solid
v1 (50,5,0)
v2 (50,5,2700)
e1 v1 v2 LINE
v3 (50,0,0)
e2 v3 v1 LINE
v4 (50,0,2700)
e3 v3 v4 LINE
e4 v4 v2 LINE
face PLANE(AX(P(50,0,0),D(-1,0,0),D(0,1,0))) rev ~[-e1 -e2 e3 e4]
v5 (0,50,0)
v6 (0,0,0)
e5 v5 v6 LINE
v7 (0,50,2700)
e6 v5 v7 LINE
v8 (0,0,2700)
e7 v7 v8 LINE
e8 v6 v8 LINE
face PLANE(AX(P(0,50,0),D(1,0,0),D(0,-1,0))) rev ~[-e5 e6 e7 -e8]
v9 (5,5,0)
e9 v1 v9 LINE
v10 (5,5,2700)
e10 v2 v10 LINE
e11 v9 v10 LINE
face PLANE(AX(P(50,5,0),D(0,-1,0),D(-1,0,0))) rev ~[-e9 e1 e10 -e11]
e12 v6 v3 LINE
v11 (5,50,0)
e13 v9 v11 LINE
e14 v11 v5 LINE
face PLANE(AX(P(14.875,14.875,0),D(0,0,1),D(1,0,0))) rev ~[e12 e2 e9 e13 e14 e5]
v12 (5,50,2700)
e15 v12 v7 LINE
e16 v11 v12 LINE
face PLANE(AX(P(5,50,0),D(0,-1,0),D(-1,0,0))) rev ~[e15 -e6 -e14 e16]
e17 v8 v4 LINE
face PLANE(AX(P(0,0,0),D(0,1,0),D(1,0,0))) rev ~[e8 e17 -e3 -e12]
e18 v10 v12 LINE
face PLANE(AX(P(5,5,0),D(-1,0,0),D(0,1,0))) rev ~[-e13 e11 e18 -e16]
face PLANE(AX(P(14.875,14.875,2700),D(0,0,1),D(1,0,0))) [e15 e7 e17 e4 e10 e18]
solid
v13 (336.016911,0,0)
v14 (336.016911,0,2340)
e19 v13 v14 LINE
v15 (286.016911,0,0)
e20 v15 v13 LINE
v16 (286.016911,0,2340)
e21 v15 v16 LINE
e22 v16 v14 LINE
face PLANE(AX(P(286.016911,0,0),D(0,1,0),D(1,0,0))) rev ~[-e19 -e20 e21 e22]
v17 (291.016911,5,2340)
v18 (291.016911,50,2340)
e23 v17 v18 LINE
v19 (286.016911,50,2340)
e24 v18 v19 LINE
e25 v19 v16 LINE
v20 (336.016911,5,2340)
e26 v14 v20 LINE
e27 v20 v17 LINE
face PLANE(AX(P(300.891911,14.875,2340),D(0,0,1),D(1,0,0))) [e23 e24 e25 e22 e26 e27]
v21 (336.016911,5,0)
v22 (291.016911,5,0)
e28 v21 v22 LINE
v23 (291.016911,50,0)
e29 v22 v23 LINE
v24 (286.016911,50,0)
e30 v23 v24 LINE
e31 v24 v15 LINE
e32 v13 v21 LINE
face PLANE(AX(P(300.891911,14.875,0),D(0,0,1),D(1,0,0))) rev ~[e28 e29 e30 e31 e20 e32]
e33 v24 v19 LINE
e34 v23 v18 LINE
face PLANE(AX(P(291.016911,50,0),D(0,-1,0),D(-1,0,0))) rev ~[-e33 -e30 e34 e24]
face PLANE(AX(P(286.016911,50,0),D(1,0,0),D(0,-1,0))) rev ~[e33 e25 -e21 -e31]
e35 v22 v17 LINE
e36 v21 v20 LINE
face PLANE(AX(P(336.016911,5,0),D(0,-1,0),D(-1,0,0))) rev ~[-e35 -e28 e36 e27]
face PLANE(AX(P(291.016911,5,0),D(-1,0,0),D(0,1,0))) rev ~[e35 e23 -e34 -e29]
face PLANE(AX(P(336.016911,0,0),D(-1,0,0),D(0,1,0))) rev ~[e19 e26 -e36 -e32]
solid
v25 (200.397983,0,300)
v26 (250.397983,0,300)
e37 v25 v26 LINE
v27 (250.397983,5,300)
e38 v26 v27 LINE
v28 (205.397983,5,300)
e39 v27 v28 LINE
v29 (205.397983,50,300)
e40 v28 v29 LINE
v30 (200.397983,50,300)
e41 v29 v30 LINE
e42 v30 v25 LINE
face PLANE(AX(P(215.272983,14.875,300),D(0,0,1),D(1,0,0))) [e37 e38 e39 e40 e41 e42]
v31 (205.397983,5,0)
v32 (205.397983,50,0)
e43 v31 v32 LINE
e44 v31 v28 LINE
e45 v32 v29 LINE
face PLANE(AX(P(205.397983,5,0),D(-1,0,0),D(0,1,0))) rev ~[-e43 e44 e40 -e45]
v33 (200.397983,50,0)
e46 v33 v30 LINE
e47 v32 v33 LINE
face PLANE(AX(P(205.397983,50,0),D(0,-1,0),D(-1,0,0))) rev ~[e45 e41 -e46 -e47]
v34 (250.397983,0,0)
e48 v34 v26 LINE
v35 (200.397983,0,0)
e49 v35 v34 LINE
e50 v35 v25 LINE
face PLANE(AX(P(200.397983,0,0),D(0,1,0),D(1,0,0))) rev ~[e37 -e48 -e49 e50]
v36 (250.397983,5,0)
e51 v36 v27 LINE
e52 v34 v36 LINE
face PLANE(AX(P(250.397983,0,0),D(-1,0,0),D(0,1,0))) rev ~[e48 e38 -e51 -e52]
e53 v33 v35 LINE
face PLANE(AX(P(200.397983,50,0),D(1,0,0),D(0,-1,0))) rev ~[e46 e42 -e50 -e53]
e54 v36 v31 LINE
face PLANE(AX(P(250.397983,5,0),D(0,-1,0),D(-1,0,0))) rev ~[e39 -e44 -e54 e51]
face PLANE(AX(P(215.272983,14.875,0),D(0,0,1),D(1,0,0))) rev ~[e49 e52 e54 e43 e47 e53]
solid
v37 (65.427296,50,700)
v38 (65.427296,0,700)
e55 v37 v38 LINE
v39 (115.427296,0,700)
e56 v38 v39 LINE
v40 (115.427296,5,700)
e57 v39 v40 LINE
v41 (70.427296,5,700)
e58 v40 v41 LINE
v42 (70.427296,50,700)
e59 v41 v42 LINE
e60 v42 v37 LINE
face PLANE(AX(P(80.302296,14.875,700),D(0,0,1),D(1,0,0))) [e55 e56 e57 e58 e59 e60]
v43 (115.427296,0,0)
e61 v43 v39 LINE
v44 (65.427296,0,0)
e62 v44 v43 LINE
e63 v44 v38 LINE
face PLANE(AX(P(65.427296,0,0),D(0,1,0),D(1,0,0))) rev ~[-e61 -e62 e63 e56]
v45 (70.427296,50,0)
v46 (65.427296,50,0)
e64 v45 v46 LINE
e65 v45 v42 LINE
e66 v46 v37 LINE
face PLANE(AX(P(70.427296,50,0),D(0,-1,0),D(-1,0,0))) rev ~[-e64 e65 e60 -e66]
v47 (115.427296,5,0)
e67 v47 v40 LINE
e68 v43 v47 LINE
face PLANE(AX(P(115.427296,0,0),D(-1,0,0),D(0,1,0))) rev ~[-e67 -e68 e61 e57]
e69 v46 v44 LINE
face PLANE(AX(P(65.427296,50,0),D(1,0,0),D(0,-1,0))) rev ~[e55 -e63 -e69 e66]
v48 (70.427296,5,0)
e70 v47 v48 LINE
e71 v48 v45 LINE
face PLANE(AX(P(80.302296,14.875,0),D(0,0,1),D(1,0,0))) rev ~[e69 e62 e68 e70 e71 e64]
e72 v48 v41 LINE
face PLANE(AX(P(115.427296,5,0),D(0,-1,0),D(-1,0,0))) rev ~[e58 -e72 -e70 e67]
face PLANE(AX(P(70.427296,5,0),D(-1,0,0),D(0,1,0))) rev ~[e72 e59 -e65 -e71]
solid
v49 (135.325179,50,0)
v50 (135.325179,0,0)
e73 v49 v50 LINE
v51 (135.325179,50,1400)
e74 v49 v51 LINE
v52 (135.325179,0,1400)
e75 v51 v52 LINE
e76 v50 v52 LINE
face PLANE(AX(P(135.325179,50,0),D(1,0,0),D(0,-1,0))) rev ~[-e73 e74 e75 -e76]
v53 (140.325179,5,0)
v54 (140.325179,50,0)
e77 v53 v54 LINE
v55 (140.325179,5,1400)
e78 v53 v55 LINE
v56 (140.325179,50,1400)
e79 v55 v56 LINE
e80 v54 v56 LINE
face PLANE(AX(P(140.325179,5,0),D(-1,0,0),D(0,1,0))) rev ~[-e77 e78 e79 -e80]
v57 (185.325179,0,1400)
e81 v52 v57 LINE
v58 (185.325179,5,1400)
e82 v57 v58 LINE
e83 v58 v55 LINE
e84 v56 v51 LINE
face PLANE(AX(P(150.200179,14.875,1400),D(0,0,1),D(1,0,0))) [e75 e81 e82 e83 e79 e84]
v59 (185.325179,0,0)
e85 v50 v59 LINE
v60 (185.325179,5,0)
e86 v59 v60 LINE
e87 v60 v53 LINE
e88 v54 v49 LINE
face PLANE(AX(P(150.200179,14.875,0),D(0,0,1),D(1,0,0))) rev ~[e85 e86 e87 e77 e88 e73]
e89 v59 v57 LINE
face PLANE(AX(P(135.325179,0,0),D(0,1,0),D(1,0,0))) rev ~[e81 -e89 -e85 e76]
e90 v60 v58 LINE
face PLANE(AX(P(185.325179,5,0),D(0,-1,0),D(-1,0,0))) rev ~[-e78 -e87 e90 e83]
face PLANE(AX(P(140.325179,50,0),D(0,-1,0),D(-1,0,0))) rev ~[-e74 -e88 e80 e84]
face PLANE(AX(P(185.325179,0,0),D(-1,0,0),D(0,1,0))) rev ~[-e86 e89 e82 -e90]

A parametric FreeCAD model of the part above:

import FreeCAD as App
import Part
import Sketcher
from FreeCAD import Vector


def add_polygon(sketch, points):
    """Adds a closed chain of lines whose ends are joined by coincident constraints."""
    first, n = sketch.GeometryCount, len(points)
    for a, b in zip(points, points[1:] + points[:1]):
        sketch.addGeometry(Part.LineSegment(App.Vector(*a, 0), App.Vector(*b, 0)), False)
    for i in range(n):
        sketch.addConstraint(Sketcher.Constraint("Coincident", first + i, 2, first + (i + 1) % n, 1))

doc = App.newDocument("Part")
body = doc.addObject("PartDesign::Body", "Body")

# Sketch on XY plane
sketch1 = body.newObject("Sketcher::SketchObject", "Sketch")
sketch1.AttachmentSupport = (doc.getObject("XY_Plane"), [""])
sketch1.MapMode = "FlatFace"
add_polygon(sketch1, [(0, 50), (0, 0), (50, 0), (50, 5), (5, 5), (5, 50)])  # lines 0-5
sketch1.addConstraint([
    Sketcher.Constraint("Vertical", 0),
    Sketcher.Constraint("Horizontal", 1),
    Sketcher.Constraint("Vertical", 2),
    Sketcher.Constraint("Horizontal", 3),
    Sketcher.Constraint("Vertical", 4),
    Sketcher.Constraint("Horizontal", 5),
    Sketcher.Constraint("Coincident", 0, 2, -1, 1),
    Sketcher.Constraint("Equal", 1, 0),
    Sketcher.Constraint("Equal", 5, 2),
    Sketcher.Constraint("DistanceX", 1, 1, 1, 2, 50.0),
    Sketcher.Constraint("DistanceX", 3, 2, 3, 1, 45.0),
])
pad1 = body.newObject("PartDesign::Pad", "Pad")
pad1.Profile = sketch1
pad1.Length = 2700
body2 = doc.addObject("PartDesign::Body", "Body001")

# Sketch on XY plane
sketch2 = body2.newObject("Sketcher::SketchObject", "Sketch001")
sketch2.AttachmentSupport = (doc.getObject("XY_Plane001"), [""])
sketch2.MapMode = "FlatFace"
add_polygon(sketch2, [(65.427296, 50), (65.427296, 0), (115.427296, 0), (115.427296, 5), (70.427296, 5), (70.427296, 50)])  # lines 0-5
sketch2.addConstraint([
    Sketcher.Constraint("Vertical", 0),
    Sketcher.Constraint("Horizontal", 1),
    Sketcher.Constraint("Vertical", 2),
    Sketcher.Constraint("Horizontal", 3),
    Sketcher.Constraint("Vertical", 4),
    Sketcher.Constraint("Horizontal", 5),
    Sketcher.Constraint("PointOnObject", 0, 2, -1),
    Sketcher.Constraint("Equal", 1, 0),
    Sketcher.Constraint("Equal", 5, 2),
    Sketcher.Constraint("DistanceX", 1, 1, 1, 2, 50.0),
    Sketcher.Constraint("DistanceX", 3, 2, 3, 1, 45.0),
    Sketcher.Constraint("DistanceX", -1, 1, 0, 2, 65.427296),
])
pad2 = body2.newObject("PartDesign::Pad", "Pad001")
pad2.Profile = sketch2
pad2.Length = 700
body3 = doc.addObject("PartDesign::Body", "Body002")

# Sketch on XY plane
sketch3 = body3.newObject("Sketcher::SketchObject", "Sketch002")
sketch3.AttachmentSupport = (doc.getObject("XY_Plane002"), [""])
sketch3.MapMode = "FlatFace"
add_polygon(sketch3, [(135.325179, 50), (135.325179, 0), (185.325179, 0), (185.325179, 5), (140.325179, 5), (140.325179, 50)])  # lines 0-5
sketch3.addConstraint([
    Sketcher.Constraint("Vertical", 0),
    Sketcher.Constraint("Horizontal", 1),
    Sketcher.Constraint("Vertical", 2),
    Sketcher.Constraint("Horizontal", 3),
    Sketcher.Constraint("Vertical", 4),
    Sketcher.Constraint("Horizontal", 5),
    Sketcher.Constraint("PointOnObject", 0, 2, -1),
    Sketcher.Constraint("Equal", 1, 0),
    Sketcher.Constraint("Equal", 5, 2),
    Sketcher.Constraint("DistanceX", 1, 1, 1, 2, 50.0),
    Sketcher.Constraint("DistanceX", 3, 2, 3, 1, 45.0),
    Sketcher.Constraint("DistanceX", -1, 1, 0, 2, 135.325179),
])
pad3 = body3.newObject("PartDesign::Pad", "Pad002")
pad3.Profile = sketch3
pad3.Length = 1400
body4 = doc.addObject("PartDesign::Body", "Body003")

# Sketch on XY plane
sketch4 = body4.newObject("Sketcher::SketchObject", "Sketch003")
sketch4.AttachmentSupport = (doc.getObject("XY_Plane003"), [""])
sketch4.MapMode = "FlatFace"
add_polygon(sketch4, [(200.397983, 50), (200.397983, 0), (250.397983, 0), (250.397983, 5), (205.397983, 5), (205.397983, 50)])  # lines 0-5
sketch4.addConstraint([
    Sketcher.Constraint("Vertical", 0),
    Sketcher.Constraint("Horizontal", 1),
    Sketcher.Constraint("Vertical", 2),
    Sketcher.Constraint("Horizontal", 3),
    Sketcher.Constraint("Vertical", 4),
    Sketcher.Constraint("Horizontal", 5),
    Sketcher.Constraint("PointOnObject", 0, 2, -1),
    Sketcher.Constraint("Equal", 1, 0),
    Sketcher.Constraint("Equal", 5, 2),
    Sketcher.Constraint("DistanceX", 1, 1, 1, 2, 50.0),
    Sketcher.Constraint("DistanceX", 3, 2, 3, 1, 45.0),
    Sketcher.Constraint("DistanceX", -1, 1, 0, 2, 200.397983),
])
pad4 = body4.newObject("PartDesign::Pad", "Pad003")
pad4.Profile = sketch4
pad4.Length = 300
body5 = doc.addObject("PartDesign::Body", "Body004")

# Sketch on XY plane
sketch5 = body5.newObject("Sketcher::SketchObject", "Sketch004")
sketch5.AttachmentSupport = (doc.getObject("XY_Plane004"), [""])
sketch5.MapMode = "FlatFace"
add_polygon(sketch5, [(286.016911, 50), (286.016911, 0), (336.016911, 0), (336.016911, 5), (291.016911, 5), (291.016911, 50)])  # lines 0-5
sketch5.addConstraint([
    Sketcher.Constraint("Vertical", 0),
    Sketcher.Constraint("Horizontal", 1),
    Sketcher.Constraint("Vertical", 2),
    Sketcher.Constraint("Horizontal", 3),
    Sketcher.Constraint("Vertical", 4),
    Sketcher.Constraint("Horizontal", 5),
    Sketcher.Constraint("PointOnObject", 0, 2, -1),
    Sketcher.Constraint("Equal", 1, 0),
    Sketcher.Constraint("Equal", 5, 2),
    Sketcher.Constraint("DistanceX", 1, 1, 1, 2, 50.0),
    Sketcher.Constraint("DistanceX", 3, 2, 3, 1, 45.0),
    Sketcher.Constraint("DistanceX", -1, 1, 0, 2, 286.016911),
])
pad5 = body5.newObject("PartDesign::Pad", "Pad004")
pad5.Profile = sketch5
pad5.Length = 2340

doc.recompute()
